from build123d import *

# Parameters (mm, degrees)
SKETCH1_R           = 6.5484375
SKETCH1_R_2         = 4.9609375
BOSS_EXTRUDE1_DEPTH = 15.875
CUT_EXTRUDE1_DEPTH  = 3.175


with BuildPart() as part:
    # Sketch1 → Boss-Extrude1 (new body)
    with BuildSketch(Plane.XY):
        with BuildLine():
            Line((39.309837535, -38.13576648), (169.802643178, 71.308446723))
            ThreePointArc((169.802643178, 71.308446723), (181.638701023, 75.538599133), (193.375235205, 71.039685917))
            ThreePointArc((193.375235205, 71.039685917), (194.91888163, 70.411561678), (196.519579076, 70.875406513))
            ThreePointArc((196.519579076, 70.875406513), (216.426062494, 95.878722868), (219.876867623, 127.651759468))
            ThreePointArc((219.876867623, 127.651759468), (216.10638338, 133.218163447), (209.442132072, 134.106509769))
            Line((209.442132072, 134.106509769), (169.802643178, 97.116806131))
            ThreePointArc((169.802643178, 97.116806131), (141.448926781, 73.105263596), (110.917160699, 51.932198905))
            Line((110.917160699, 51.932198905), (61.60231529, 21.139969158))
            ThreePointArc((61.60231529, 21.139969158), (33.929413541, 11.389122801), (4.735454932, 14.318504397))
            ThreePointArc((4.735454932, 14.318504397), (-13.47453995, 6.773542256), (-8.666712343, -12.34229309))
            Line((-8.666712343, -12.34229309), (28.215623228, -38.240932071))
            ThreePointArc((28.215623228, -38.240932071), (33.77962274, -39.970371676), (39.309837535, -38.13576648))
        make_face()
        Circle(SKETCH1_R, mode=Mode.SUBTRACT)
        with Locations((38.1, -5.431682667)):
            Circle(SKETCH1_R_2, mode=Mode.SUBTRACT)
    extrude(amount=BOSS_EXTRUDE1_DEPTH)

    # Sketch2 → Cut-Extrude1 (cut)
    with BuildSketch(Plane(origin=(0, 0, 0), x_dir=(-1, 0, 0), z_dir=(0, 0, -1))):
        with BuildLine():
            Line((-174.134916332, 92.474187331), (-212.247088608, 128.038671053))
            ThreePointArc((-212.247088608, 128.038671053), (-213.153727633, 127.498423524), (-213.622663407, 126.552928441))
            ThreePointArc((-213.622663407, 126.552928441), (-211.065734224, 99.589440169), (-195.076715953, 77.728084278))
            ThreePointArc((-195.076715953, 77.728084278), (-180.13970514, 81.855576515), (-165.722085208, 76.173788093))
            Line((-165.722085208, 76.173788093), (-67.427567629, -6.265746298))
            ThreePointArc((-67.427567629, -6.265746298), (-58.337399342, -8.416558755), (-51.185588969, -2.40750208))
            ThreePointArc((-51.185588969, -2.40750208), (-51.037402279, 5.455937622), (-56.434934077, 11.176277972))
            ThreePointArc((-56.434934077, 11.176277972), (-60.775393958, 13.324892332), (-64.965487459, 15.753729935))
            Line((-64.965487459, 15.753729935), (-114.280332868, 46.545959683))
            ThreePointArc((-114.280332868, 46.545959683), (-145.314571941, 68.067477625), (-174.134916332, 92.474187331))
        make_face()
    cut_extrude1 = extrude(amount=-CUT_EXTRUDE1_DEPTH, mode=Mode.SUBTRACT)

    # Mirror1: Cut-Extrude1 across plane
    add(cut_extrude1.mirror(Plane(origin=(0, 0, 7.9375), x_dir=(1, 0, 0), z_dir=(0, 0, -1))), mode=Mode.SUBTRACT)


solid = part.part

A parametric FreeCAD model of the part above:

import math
import FreeCAD as App
import Part
import Sketcher
from FreeCAD import Vector
Q = App.Units.Quantity

doc = App.newDocument("Part")
body = doc.addObject("PartDesign::Body", "Body")

# Sketch on XY plane
sketch1 = body.newObject("Sketcher::SketchObject", "Sketch")
sketch1.AttachmentSupport = (doc.getObject("XY_Plane"), [""])
sketch1.MapMode = "FlatFace"
sketch1.addGeometry([
    Part.LineSegment(Vector(39.3, -38.1, 0), Vector(169.8, 71.3, 0)),  # 0
    Part.ArcOfCircle(Part.Circle(Vector(181.4, 57.4, 0), Vector(0, 0, 1), 18.1), math.radians(49), math.radians(130)),  # 1
    Part.ArcOfCircle(Part.Circle(Vector(195.1, 72.9, 0), Vector(0, 0, 1), 2.5), math.radians(-131), math.radians(-55)),  # 2
    Part.ArcOfCircle(Part.Circle(Vector(163.3, 117.7, 0), Vector(0, 0, 1), 57.4), math.radians(-55), math.radians(10)),  # 3
    Part.ArcOfCircle(Part.Circle(Vector(211.8, 126.2, 0), Vector(0, 0, 1), 8.2), math.radians(10), math.radians(107)),  # 4
    Part.LineSegment(Vector(209.4, 134.1, 0), Vector(169.8, 97.1, 0)),  # 5
    Part.ArcOfCircle(Part.Circle(Vector(-93.4, 379.2, 0), Vector(0, 0, 1), 385.8), math.radians(-58.02), math.radians(-46.98)),  # 6
    Part.LineSegment(Vector(110.9, 51.9, 0), Vector(61.6, 21.1, 0)),  # 7
    Part.ArcOfCircle(Part.Circle(Vector(25.9, 78.3, 0), Vector(0, 0, 1), 67.4), math.radians(-108), math.radians(-58)),  # 8
    Part.ArcOfCircle(Part.Circle(Vector(0, 0, 0), Vector(0, 0, 1), 15.1), math.radians(72), math.radians(235)),  # 9
    Part.LineSegment(Vector(-8.7, -12.3, 0), Vector(28.2, -38.2, 0)),  # 10
    Part.ArcOfCircle(Part.Circle(Vector(33.7, -30.4, 0), Vector(0, 0, 1), 9.5), math.radians(-125), math.radians(-54)),  # 11
    Part.Circle(Vector(38.1, -5.4, 0), Vector(0, 0, 1), 5),  # 12
    Part.Circle(Vector(0, 0, 0), Vector(0, 0, 1), 6.5),  # 13
], False)
sketch1.addConstraint([
    Sketcher.Constraint("Tangent", 0, 2, 1, 2),
    Sketcher.Constraint("Tangent", 1, 1, 2, 1),
    Sketcher.Constraint("Tangent", 2, 2, 3, 1),
    Sketcher.Constraint("Tangent", 3, 2, 4, 1),
    Sketcher.Constraint("Coincident", 4, 2, 5, 1),
    Sketcher.Constraint("Tangent", 5, 2, 6, 2),
    Sketcher.Constraint("Tangent", 6, 1, 7, 1),
    Sketcher.Constraint("Tangent", 7, 2, 8, 2),
    Sketcher.Constraint("Tangent", 8, 1, 9, 1),
    Sketcher.Constraint("Tangent", 9, 2, 10, 1),
    Sketcher.Constraint("Tangent", 10, 2, 11, 1),
    Sketcher.Constraint("Coincident", 11, 2, 0, 1),
    Sketcher.Constraint("Coincident", 9, 3, -1, 1),
    Sketcher.Constraint("Coincident", 13, 3, -1, 1),
    Sketcher.Constraint("Vertical", 0, 2, 5, 2),
    Sketcher.Constraint("Radius", 2, Q("0.1 in")),
    Sketcher.Constraint("Radius", 3, Q("2.26 in")),
    Sketcher.Constraint("Diameter", 12, Q("0.390625 in")),
    Sketcher.Constraint("Diameter", 13, Q("0.515625 in")),
    Sketcher.Constraint("Radius", 9, Q("0.59375 in")),
    Sketcher.Constraint("Radius", 11, Q("0.375 in")),
    Sketcher.Constraint("DistanceX", -1, 1, 12, 3, Q("1.5 in")),
    Sketcher.Constraint("Radius", 1, Q("18.09772 mm")),
    Sketcher.Constraint("Radius", 8, Q("67.40738 mm")),
    Sketcher.Constraint("Radius", 4, Q("8.217336 mm")),
    Sketcher.Constraint("Radius", 6, Q("385.845046 mm")),
    Sketcher.Constraint("DistanceX", -1, 1, 4, 3, Q("211.783498 mm")),
    Sketcher.Constraint("DistanceY", 11, 3, -1, 1, Q("30.4458 mm")),
    Sketcher.Constraint("DistanceY", -1, 1, 6, 1, Q("51.932199 mm")),
    Sketcher.Constraint("DistanceY", 11, 3, 2, 3, Q("103.393902 mm")),
    Sketcher.Constraint("DistanceY", 2, 2, 5, 2, Q("26.2414 mm")),
    Sketcher.Constraint("DistanceX", 11, 3, 11, 2, Q("5.620501 mm")),
    Sketcher.Constraint("Distance", 7, Q("58.13876 mm")),
    Sketcher.Constraint("Distance", 10, Q("45.06713 mm")),
    Sketcher.Constraint("DistanceX", -1, 1, 3, 3, Q("163.338862 mm")),
    Sketcher.Constraint("DistanceY", -1, 1, 6, 3, Q("379.216249 mm")),
    Sketcher.Constraint("DistanceX", -1, 1, 2, 2, Q("196.519579 mm")),
    Sketcher.Constraint("DistanceY", 12, 3, 7, 2, Q("26.571652 mm")),
])
pad1 = body.newObject("PartDesign::Pad", "Pad")
pad1.Profile = sketch1
pad1.Length = Q("0.625 in")

# Sketch on XY plane
sketch2 = body.newObject("Sketcher::SketchObject", "Sketch001")
sketch2.AttachmentSupport = (doc.getObject("XY_Plane"), [""])
sketch2.MapMode = "FlatFace"
sketch2.addGeometry([
    Part.LineSegment(Vector(174.1, 92.5, 0), Vector(212.2, 128, 0)),  # 0
    Part.ArcOfCircle(Part.Circle(Vector(211.8, 126.2, 0), Vector(0, 0, 1), 1.9), math.radians(10), math.radians(76)),  # 1
    Part.ArcOfCircle(Part.Circle(Vector(163.3, 117.7, 0), Vector(0, 0, 1), 51.1), math.radians(-52), math.radians(10)),  # 2
    Part.ArcOfCircle(Part.Circle(Vector(181.4, 57.4, 0), Vector(0, 0, 1), 24.4), math.radians(56), math.radians(130)),  # 3
    Part.LineSegment(Vector(165.7, 76.2, 0), Vector(67.4, -6.3, 0)),  # 4
    Part.ArcOfCircle(Part.Circle(Vector(60.7, 1.7, 0), Vector(0, 0, 1), 10.4), math.radians(-157), math.radians(-50)),  # 5
    Part.ArcOfCircle(Part.Circle(Vector(60.7, 1.7, 0), Vector(0, 0, 1), 10.4), math.radians(114), math.radians(203)),  # 6
    Part.ArcOfCircle(Part.Circle(Vector(25.9, 78.3, 0), Vector(0, 0, 1), 73.8), math.radians(-65.55), math.radians(-58.02)),  # 7
    Part.LineSegment(Vector(65, 15.8, 0), Vector(114.3, 46.5, 0)),  # 8
    Part.ArcOfCircle(Part.Circle(Vector(-93.4, 379.2, 0), Vector(0, 0, 1), 392.2), math.radians(-58.02), math.radians(-46.98)),  # 9
], False)
sketch2.addConstraint([
    Sketcher.Constraint("Coincident", 0, 2, 1, 2),
    Sketcher.Constraint("Tangent", 1, 1, 2, 2),
    Sketcher.Constraint("Coincident", 2, 1, 3, 1),
    Sketcher.Constraint("Tangent", 3, 2, 4, 1),
    Sketcher.Constraint("Tangent", 4, 2, 5, 2),
    Sketcher.Constraint("Tangent", 5, 1, 6, 2),
    Sketcher.Constraint("Tangent", 6, 1, 7, 1),
    Sketcher.Constraint("Tangent", 7, 2, 8, 1),
    Sketcher.Constraint("Tangent", 8, 2, 9, 1),
    Sketcher.Constraint("Tangent", 9, 2, 0, 1),
    Sketcher.Constraint("Equal", 5, 6),
    Sketcher.Constraint("Radius", 2, Q("2.01 in")),
    Sketcher.Constraint("Radius", 3, Q("24.44772 mm")),
    Sketcher.Constraint("Radius", 7, Q("73.75738 mm")),
    Sketcher.Constraint("Radius", 1, Q("1.867336 mm")),
    Sketcher.Constraint("Radius", 5, Q("10.403937 mm")),
    Sketcher.Constraint("Radius", 9, Q("392.195046 mm")),
    Sketcher.Constraint("Distance", 0, Q("52.128401 mm")),
    Sketcher.Constraint("DistanceX", -1, 1, 1, 3, Q("211.783498 mm")),
    Sketcher.Constraint("DistanceY", 5, 3, 7, 3, Q("76.611002 mm")),
    Sketcher.Constraint("DistanceX", 2, 3, 1, 1, Q("50.283802 mm")),
    Sketcher.Constraint("DistanceY", 4, 2, 3, 3, Q("63.707801 mm")),
    Sketcher.Constraint("DistanceX", 5, 1, 7, 2, Q("13.779898 mm")),
    Sketcher.Constraint("DistanceX", 6, 1, 8, 2, Q("57.845399 mm")),
    Sketcher.Constraint("DistanceX", 9, 2, 2, 1, Q("20.9418 mm")),
    Sketcher.Constraint("Distance", 8, Q("58.13876 mm")),
    Sketcher.Constraint("DistanceX", -1, 1, 5, 3, Q("60.741919 mm")),
    Sketcher.Constraint("DistanceY", -1, 1, 9, 3, Q("379.216249 mm")),
    Sketcher.Constraint("DistanceX", -1, 1, 0, 2, Q("212.247089 mm")),
])
pocket1 = body.newObject("PartDesign::Pocket", "Pocket")
pocket1.Profile = sketch2
pocket1.Length = Q("0.125 in")
pocket1.Reversed = True
doc.recompute()

datumplane = body.newObject("PartDesign::Plane", "DatumPlane")
datumplane.AttachmentSupport = (doc.getObject("XY_Plane"), [""])
datumplane.MapMode = "FlatFace"
datumplane.AttachmentOffset = App.Placement(Vector(0, 0, 0.3125 * 25.4), App.Rotation())
mirrored = body.newObject("PartDesign::Mirrored", "Mirrored")
mirrored.Originals = [pocket1]
mirrored.MirrorPlane = (datumplane, [""])
body.Tip = mirrored

doc.recompute()
